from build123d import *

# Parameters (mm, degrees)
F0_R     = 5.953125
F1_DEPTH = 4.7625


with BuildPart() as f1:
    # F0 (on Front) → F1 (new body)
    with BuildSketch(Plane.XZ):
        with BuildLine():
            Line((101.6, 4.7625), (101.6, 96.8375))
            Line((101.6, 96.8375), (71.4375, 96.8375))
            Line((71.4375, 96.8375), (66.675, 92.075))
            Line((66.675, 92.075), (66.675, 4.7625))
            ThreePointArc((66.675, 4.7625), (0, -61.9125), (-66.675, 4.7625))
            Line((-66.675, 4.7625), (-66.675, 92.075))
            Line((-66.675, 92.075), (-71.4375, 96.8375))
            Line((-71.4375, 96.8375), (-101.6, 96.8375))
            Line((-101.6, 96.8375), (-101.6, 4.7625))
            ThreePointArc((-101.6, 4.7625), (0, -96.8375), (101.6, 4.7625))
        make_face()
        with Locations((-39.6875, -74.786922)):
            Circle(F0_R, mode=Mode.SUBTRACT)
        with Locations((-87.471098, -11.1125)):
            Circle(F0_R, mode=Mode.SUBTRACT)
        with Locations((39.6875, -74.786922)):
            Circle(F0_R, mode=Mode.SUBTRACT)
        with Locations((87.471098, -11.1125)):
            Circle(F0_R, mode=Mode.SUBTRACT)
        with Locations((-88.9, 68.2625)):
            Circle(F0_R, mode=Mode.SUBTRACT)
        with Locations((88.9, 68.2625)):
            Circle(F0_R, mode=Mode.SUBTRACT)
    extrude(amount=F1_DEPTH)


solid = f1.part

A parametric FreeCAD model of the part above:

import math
import FreeCAD as App
import Part
import Sketcher
from FreeCAD import Vector
Q = App.Units.Quantity

doc = App.newDocument("Part")
body = doc.addObject("PartDesign::Body", "Body")

sketch1 = body.newObject("Sketcher::SketchObject", "Sketch")
sketch1.AttachmentSupport = (doc.getObject("XZ_Plane"), [""])
sketch1.MapMode = "FlatFace"
sketch1.addGeometry([
    Part.LineSegment(Vector(101.6, 4.7625, 0), Vector(101.6, 96.8375, 0)),
    Part.LineSegment(Vector(101.6, 96.8375, 0), Vector(71.4375, 96.8375, 0)),
    Part.LineSegment(Vector(71.4375, 96.8375, 0), Vector(66.675, 92.075, 0)),
    Part.LineSegment(Vector(66.675, 92.075, 0), Vector(66.675, 4.7625, 0)),
    Part.ArcOfCircle(Part.Circle(Vector(0, 4.7625, 0), Vector(0, 0, 1), 66.675), math.radians(180), math.radians(360)),
    Part.LineSegment(Vector(-66.675, 4.7625, 0), Vector(-66.675, 92.075, 0)),
    Part.LineSegment(Vector(-66.675, 92.075, 0), Vector(-71.4375, 96.8375, 0)),
    Part.LineSegment(Vector(-71.4375, 96.8375, 0), Vector(-101.6, 96.8375, 0)),
    Part.LineSegment(Vector(-101.6, 96.8375, 0), Vector(-101.6, 4.7625, 0)),
    Part.ArcOfCircle(Part.Circle(Vector(0, 4.7625, 0), Vector(0, 0, 1), 101.6), math.radians(180), math.radians(360)),
    Part.Circle(Vector(-39.6875, -74.786922, 0), Vector(0, 0, 1), 5.953125),
    Part.Circle(Vector(-87.471098, -11.1125, 0), Vector(0, 0, 1), 5.953125),
    Part.Circle(Vector(39.6875, -74.786922, 0), Vector(0, 0, 1), 5.953125),
    Part.Circle(Vector(87.471098, -11.1125, 0), Vector(0, 0, 1), 5.953125),
    Part.Circle(Vector(-88.9, 68.2625, 0), Vector(0, 0, 1), 5.953125),
    Part.Circle(Vector(88.9, 68.2625, 0), Vector(0, 0, 1), 5.953125),
], False)
sketch1.addConstraint([
    Sketcher.Constraint("Coincident", 0, 2, 1, 1),
    Sketcher.Constraint("Coincident", 1, 2, 2, 1),
    Sketcher.Constraint("Coincident", 2, 2, 3, 1),
    Sketcher.Constraint("Tangent", 3, 2, 4, 2),
    Sketcher.Constraint("Tangent", 4, 1, 5, 1),
    Sketcher.Constraint("Coincident", 5, 2, 6, 1),
    Sketcher.Constraint("Coincident", 6, 2, 7, 1),
    Sketcher.Constraint("Coincident", 7, 2, 8, 1),
    Sketcher.Constraint("Tangent", 8, 2, 9, 1),
    Sketcher.Constraint("Tangent", 9, 2, 0, 1),
    Sketcher.Constraint("Vertical", 0),
    Sketcher.Constraint("Horizontal", 1),
    Sketcher.Constraint("Vertical", 3),
    Sketcher.Constraint("Vertical", 5),
    Sketcher.Constraint("Horizontal", 7),
    Sketcher.Constraint("Vertical", 8),
    Sketcher.Constraint("Coincident", 9, 3, 4, 3),
    Sketcher.Constraint("Equal", 10, 11),
    Sketcher.Constraint("Equal", 11, 12),
    Sketcher.Constraint("Equal", 12, 13),
    Sketcher.Constraint("Equal", 13, 14),
    Sketcher.Constraint("Equal", 14, 15),
    Sketcher.Constraint("Symmetric", 10, 3, 12, 3, -2),
    Sketcher.Constraint("Symmetric", 11, 3, 13, 3, -2),
    Sketcher.Constraint("Symmetric", 14, 3, 15, 3, -2),
    Sketcher.Constraint("Symmetric", 2, 2, 5, 2, -2),
    Sketcher.Constraint("Symmetric", 1, 2, 6, 2, -2),
    Sketcher.Constraint("Perpendicular", 2, 6),
    Sketcher.Constraint("Radius", 9, Q("4 in")),
    Sketcher.Constraint("Diameter", 10, Q("0.46875 in")),
    Sketcher.Constraint("Radius", 4, Q("2.625 in")),
    Sketcher.Constraint("DistanceX", 14, 3, 15, 3, Q("7 in")),
    Sketcher.Constraint("DistanceY", 4, 3, 14, 3, Q("2.5 in")),
    Sketcher.Constraint("DistanceX", 1, 2, 1, 1, Q("1.1875 in")),
    Sketcher.Constraint("DistanceY", 0, 1, 0, 2, Q("3.625 in")),
    Sketcher.Constraint("DistanceY", 13, 3, 0, 2, Q("4.25 in")),
    Sketcher.Constraint("DistanceY", -1, 1, 4, 3, Q("0.1875 in")),
    Sketcher.Constraint("DistanceX", 10, 3, -1, 1, Q("1.5625 in")),
    Sketcher.Constraint("DistanceX", 13, 3, 0, 2, Q("14.128902 mm")),
    Sketcher.Constraint("DistanceY", 10, 3, 14, 3, Q("143.049422 mm")),
])
pad1 = body.newObject("PartDesign::Pad", "Pad")
pad1.Profile = sketch1
pad1.Length = Q("0.1875 in")

doc.recompute()
